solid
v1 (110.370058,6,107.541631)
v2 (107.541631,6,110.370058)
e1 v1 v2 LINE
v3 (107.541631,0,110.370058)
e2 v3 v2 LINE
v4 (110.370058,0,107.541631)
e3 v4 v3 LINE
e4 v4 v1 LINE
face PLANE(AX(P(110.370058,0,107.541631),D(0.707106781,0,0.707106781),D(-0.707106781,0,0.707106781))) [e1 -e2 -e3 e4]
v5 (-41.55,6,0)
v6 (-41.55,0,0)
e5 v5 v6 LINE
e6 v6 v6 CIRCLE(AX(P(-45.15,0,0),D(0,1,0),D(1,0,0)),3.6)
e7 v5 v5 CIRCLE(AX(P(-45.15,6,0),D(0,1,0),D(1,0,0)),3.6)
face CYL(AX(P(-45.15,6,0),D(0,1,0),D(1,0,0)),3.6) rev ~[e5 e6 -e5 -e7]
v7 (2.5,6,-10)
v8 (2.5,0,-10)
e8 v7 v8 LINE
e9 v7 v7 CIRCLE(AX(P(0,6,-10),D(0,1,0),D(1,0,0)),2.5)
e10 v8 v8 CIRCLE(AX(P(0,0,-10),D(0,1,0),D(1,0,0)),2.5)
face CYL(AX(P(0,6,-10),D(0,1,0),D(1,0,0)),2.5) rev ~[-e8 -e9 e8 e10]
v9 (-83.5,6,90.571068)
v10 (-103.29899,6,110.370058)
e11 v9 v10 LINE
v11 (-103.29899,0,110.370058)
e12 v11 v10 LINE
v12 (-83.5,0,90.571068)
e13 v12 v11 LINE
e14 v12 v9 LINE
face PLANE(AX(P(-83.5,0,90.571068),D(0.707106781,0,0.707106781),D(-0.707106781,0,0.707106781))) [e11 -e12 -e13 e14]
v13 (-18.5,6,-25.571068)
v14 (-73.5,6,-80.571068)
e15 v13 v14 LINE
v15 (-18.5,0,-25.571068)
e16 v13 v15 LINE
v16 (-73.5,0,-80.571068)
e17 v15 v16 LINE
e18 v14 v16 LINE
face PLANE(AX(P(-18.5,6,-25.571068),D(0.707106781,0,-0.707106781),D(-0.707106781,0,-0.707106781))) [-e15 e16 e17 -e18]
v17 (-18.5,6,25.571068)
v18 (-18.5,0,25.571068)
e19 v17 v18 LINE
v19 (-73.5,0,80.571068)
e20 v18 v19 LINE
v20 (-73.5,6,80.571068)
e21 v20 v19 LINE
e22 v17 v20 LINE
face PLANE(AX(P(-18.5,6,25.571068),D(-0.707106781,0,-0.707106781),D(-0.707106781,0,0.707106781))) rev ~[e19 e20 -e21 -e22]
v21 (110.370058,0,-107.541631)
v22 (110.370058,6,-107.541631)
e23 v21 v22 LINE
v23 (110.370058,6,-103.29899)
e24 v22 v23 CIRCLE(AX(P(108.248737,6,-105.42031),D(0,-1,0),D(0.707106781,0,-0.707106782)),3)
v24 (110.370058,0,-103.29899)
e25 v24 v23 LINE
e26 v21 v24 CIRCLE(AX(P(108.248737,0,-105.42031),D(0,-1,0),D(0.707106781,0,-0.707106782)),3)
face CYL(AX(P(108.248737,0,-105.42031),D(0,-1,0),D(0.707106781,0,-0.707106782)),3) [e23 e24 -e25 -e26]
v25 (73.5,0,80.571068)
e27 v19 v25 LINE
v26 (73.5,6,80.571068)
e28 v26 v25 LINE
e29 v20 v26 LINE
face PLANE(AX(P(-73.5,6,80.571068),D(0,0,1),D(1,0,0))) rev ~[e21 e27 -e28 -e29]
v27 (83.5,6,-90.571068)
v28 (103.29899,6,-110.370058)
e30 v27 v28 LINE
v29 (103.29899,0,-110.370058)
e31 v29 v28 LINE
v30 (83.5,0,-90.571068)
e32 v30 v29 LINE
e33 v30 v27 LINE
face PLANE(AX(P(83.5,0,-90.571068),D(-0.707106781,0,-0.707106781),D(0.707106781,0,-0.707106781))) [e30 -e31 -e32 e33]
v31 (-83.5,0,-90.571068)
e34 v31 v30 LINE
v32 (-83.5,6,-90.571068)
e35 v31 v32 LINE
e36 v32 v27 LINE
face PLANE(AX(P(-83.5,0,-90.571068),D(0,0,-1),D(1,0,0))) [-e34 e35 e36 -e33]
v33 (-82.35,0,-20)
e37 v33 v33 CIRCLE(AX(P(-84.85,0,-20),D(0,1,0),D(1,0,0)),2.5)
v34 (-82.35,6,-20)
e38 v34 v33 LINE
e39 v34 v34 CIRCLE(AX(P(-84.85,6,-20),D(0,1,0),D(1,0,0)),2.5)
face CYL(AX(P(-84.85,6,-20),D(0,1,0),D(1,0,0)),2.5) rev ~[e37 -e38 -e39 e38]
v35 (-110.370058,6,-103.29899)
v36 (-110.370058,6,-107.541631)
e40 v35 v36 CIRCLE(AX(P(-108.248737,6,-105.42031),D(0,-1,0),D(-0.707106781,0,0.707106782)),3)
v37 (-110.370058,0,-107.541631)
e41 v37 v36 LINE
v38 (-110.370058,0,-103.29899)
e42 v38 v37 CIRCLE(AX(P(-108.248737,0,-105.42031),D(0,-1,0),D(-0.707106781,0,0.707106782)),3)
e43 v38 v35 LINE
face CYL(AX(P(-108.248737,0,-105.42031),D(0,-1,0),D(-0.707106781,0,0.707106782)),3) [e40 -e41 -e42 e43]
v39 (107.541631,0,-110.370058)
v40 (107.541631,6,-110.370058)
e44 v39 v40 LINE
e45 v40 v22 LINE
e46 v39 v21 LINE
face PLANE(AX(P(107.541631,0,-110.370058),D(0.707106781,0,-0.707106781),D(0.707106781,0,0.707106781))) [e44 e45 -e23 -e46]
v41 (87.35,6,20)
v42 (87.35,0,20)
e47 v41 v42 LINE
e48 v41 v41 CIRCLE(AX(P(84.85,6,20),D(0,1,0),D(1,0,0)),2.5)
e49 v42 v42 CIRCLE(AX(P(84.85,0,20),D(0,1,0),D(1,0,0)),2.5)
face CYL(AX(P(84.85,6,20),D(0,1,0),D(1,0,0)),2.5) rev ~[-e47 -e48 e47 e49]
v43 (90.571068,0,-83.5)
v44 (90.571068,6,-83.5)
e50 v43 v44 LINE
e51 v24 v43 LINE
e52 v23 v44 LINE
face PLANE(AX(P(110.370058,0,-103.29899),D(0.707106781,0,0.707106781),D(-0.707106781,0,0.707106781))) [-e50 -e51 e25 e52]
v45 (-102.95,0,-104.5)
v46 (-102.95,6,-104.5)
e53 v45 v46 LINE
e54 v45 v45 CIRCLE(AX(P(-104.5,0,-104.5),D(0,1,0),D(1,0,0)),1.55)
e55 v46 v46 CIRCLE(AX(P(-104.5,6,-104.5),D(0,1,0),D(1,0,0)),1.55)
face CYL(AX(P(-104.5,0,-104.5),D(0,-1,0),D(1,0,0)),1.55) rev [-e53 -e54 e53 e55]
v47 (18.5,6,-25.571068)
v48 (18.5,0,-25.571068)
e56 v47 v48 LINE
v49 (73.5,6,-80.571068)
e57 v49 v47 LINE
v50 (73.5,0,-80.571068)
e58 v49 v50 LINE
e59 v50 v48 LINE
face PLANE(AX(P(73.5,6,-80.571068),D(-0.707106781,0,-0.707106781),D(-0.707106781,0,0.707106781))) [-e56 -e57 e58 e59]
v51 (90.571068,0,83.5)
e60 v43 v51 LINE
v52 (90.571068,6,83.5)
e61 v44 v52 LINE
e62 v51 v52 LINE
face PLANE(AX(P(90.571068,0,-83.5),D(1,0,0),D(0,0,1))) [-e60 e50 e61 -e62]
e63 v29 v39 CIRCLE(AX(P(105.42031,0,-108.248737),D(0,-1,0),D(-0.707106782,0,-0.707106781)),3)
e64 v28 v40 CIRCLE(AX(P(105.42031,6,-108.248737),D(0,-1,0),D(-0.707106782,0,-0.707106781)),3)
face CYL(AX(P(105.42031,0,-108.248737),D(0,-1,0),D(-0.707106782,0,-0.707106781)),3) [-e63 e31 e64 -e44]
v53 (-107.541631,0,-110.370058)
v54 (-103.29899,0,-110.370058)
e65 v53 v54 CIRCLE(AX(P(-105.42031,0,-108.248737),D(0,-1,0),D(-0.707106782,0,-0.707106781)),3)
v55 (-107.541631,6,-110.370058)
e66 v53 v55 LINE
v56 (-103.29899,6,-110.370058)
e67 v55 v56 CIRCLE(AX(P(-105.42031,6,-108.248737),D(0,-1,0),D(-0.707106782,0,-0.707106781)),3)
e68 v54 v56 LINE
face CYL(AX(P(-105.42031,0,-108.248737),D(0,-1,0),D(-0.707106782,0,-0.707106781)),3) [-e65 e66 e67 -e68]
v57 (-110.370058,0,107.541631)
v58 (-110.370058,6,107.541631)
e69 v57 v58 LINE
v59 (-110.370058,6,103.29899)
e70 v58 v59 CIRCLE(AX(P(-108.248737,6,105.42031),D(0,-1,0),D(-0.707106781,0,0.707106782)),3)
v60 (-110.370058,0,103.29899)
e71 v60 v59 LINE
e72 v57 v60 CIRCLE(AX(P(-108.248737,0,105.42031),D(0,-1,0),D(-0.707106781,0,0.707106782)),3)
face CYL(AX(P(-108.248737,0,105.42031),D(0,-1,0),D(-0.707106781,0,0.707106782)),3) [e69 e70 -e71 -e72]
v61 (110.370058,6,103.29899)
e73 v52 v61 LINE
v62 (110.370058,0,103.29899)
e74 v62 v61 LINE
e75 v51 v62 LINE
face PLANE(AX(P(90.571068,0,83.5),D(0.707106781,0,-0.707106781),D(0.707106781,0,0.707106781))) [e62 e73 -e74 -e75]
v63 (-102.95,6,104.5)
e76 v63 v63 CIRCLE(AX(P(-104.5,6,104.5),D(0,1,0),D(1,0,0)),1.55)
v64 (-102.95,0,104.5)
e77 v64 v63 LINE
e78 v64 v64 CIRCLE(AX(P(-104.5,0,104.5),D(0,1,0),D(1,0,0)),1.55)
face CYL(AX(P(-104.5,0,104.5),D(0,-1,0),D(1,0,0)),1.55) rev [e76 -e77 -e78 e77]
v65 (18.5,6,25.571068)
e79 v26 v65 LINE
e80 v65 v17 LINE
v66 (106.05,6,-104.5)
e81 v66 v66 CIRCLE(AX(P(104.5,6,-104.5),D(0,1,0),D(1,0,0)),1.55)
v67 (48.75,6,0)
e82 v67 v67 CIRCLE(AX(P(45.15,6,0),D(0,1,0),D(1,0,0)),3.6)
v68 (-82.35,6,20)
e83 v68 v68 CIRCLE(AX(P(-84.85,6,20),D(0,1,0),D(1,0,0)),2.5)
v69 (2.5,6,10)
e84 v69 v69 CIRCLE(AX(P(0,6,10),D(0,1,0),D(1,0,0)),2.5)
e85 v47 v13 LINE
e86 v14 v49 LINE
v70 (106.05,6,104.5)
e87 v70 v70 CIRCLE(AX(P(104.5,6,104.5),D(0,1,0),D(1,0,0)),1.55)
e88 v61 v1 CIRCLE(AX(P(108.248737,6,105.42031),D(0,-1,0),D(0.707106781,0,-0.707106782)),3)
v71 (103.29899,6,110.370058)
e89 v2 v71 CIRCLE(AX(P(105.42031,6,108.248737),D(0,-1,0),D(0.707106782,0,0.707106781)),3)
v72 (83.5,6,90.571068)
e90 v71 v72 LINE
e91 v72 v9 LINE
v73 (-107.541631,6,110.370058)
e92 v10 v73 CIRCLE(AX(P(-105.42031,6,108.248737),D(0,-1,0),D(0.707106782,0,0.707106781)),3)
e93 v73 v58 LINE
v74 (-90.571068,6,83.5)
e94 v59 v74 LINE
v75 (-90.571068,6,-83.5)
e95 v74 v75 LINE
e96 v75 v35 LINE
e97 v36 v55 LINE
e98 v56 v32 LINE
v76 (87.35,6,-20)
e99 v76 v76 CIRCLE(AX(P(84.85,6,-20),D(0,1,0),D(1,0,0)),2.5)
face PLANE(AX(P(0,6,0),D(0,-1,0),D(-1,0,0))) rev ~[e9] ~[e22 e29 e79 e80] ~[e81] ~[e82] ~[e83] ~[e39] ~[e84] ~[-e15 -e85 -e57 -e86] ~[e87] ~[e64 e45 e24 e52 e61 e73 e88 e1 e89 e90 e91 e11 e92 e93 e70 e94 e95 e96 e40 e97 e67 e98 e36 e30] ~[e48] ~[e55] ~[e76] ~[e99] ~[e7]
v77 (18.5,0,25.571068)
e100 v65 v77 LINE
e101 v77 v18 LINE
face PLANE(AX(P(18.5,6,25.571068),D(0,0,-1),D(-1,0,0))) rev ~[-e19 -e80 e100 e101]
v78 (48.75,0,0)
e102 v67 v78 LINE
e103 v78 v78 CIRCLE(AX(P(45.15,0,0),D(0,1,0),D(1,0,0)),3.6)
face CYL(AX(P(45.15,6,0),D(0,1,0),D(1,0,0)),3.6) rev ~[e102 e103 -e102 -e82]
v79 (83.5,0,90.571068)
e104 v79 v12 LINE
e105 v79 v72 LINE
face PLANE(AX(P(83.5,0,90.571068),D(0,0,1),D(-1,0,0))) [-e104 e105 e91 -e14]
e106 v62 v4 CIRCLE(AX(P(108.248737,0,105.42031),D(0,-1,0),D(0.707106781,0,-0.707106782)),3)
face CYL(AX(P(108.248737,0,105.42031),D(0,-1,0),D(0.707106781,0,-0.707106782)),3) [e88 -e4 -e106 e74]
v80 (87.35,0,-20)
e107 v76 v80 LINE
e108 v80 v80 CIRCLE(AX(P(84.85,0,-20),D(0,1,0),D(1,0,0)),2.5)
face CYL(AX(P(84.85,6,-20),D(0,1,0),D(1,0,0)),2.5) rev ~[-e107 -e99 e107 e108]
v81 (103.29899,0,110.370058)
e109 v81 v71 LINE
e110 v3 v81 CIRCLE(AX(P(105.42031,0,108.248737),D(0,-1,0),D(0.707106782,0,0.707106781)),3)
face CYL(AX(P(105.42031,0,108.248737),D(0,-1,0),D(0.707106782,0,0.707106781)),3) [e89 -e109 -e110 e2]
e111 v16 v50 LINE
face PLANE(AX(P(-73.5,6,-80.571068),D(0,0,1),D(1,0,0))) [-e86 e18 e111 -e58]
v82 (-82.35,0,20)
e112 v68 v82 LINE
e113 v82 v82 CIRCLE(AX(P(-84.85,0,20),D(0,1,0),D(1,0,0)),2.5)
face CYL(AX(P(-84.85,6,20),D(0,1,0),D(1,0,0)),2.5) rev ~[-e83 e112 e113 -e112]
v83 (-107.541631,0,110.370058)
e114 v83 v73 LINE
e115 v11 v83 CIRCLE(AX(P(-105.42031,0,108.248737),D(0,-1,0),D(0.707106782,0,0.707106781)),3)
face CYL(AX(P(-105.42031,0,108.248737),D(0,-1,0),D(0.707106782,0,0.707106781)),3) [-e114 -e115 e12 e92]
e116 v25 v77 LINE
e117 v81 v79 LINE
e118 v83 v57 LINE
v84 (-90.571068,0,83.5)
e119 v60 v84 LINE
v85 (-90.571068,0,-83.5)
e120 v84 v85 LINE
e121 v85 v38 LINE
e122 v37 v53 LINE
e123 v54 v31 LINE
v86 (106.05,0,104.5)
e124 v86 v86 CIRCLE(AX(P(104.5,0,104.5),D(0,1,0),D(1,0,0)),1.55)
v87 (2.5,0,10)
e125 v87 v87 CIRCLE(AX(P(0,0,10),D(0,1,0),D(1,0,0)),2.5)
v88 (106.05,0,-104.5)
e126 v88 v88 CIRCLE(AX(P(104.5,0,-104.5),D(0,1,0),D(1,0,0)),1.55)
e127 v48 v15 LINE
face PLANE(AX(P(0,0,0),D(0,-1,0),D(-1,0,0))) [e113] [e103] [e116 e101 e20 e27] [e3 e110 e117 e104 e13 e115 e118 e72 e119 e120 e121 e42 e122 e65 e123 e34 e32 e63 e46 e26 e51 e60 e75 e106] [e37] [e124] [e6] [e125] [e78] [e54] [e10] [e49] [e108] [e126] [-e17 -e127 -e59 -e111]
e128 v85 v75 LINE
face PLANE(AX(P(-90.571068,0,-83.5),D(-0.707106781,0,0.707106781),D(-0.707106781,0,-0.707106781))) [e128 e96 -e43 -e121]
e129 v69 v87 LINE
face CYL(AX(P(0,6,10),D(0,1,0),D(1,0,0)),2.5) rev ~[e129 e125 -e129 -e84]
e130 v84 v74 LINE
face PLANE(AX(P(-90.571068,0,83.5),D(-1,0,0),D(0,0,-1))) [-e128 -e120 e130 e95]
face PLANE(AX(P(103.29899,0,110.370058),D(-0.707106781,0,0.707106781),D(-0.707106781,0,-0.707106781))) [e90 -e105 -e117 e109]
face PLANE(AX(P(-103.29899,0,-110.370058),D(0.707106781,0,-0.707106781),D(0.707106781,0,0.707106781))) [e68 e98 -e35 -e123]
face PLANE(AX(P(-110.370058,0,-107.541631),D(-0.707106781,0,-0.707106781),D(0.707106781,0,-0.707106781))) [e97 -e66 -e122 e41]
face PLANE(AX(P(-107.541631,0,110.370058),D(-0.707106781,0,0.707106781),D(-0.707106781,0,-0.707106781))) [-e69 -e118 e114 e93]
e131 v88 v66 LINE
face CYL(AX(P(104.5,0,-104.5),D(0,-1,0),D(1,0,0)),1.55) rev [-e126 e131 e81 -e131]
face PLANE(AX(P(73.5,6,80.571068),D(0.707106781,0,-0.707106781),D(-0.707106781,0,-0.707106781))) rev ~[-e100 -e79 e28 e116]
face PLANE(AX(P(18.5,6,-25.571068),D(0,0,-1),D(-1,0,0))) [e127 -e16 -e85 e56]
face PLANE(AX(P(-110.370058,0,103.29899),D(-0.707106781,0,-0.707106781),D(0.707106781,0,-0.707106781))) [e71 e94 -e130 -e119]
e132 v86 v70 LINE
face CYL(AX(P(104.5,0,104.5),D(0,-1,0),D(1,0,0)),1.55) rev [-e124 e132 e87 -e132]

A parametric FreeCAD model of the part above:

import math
import FreeCAD as App
import Part
import Sketcher


def add_polygon(sketch, points):
    """Adds a closed chain of lines whose ends are joined by coincident constraints."""
    first, n = sketch.GeometryCount, len(points)
    for a, b in zip(points, points[1:] + points[:1]):
        sketch.addGeometry(Part.LineSegment(App.Vector(*a, 0), App.Vector(*b, 0)), False)
    for i in range(n):
        sketch.addConstraint(Sketcher.Constraint("Coincident", first + i, 2, first + (i + 1) % n, 1))

doc = App.newDocument("Part")
body = doc.addObject("PartDesign::Body", "Body")

sketch1 = body.newObject("Sketcher::SketchObject", "Sketch")
sketch1.AttachmentSupport = (doc.getObject("XZ_Plane"), [""])
sketch1.MapMode = "FlatFace"
sketch1.addGeometry([
    Part.LineSegment(App.Vector(83.5, -90.6, 0), App.Vector(-83.5, -90.6, 0)),
    Part.LineSegment(App.Vector(-83.5, -90.6, 0), App.Vector(-103.3, -110.4, 0)),
    Part.ArcOfCircle(Part.Circle(App.Vector(-105.4, -108.2, 0), App.Vector(0, 0, 1), 3), math.radians(-135), math.radians(-45)),
    Part.LineSegment(App.Vector(-107.5, -110.4, 0), App.Vector(-110.4, -107.5, 0)),
    Part.ArcOfCircle(Part.Circle(App.Vector(-108.2, -105.4, 0), App.Vector(0, 0, 1), 3), math.radians(135), math.radians(225)),
    Part.LineSegment(App.Vector(-110.4, -103.3, 0), App.Vector(-90.6, -83.5, 0)),
    Part.LineSegment(App.Vector(-90.6, -83.5, 0), App.Vector(-90.6, 83.5, 0)),
    Part.LineSegment(App.Vector(-90.6, 83.5, 0), App.Vector(-110.4, 103.3, 0)),
    Part.ArcOfCircle(Part.Circle(App.Vector(-108.2, 105.4, 0), App.Vector(0, 0, 1), 3), math.radians(135), math.radians(225)),
    Part.LineSegment(App.Vector(-110.4, 107.5, 0), App.Vector(-107.5, 110.4, 0)),
    Part.ArcOfCircle(Part.Circle(App.Vector(-105.4, 108.2, 0), App.Vector(0, 0, 1), 3), math.radians(45), math.radians(135)),
    Part.LineSegment(App.Vector(-103.3, 110.4, 0), App.Vector(-83.5, 90.6, 0)),
    Part.LineSegment(App.Vector(-83.5, 90.6, 0), App.Vector(83.5, 90.6, 0)),
    Part.LineSegment(App.Vector(83.5, 90.6, 0), App.Vector(103.3, 110.4, 0)),
    Part.ArcOfCircle(Part.Circle(App.Vector(105.4, 108.2, 0), App.Vector(0, 0, 1), 3), math.radians(45), math.radians(135)),
    Part.LineSegment(App.Vector(107.5, 110.4, 0), App.Vector(110.4, 107.5, 0)),
    Part.ArcOfCircle(Part.Circle(App.Vector(108.2, 105.4, 0), App.Vector(0, 0, 1), 3), math.radians(-45), math.radians(45)),
    Part.LineSegment(App.Vector(110.4, 103.3, 0), App.Vector(90.6, 83.5, 0)),
    Part.LineSegment(App.Vector(90.6, 83.5, 0), App.Vector(90.6, -83.5, 0)),
    Part.LineSegment(App.Vector(90.6, -83.5, 0), App.Vector(110.4, -103.3, 0)),
    Part.ArcOfCircle(Part.Circle(App.Vector(108.2, -105.4, 0), App.Vector(0, 0, 1), 3), math.radians(-45), math.radians(45)),
    Part.LineSegment(App.Vector(110.4, -107.5, 0), App.Vector(107.5, -110.4, 0)),
    Part.ArcOfCircle(Part.Circle(App.Vector(105.4, -108.2, 0), App.Vector(0, 0, 1), 3), math.radians(-135), math.radians(-45)),
    Part.LineSegment(App.Vector(103.3, -110.4, 0), App.Vector(83.5, -90.6, 0)),
], False)
sketch1.addConstraint([
    Sketcher.Constraint("Coincident", 0, 2, 1, 1),
    Sketcher.Constraint("Tangent", 1, 2, 2, 2),
    Sketcher.Constraint("Tangent", 2, 1, 3, 1),
    Sketcher.Constraint("Tangent", 3, 2, 4, 2),
    Sketcher.Constraint("Tangent", 4, 1, 5, 1),
    Sketcher.Constraint("Coincident", 5, 2, 6, 1),
    Sketcher.Constraint("Coincident", 6, 2, 7, 1),
    Sketcher.Constraint("Tangent", 7, 2, 8, 2),
    Sketcher.Constraint("Tangent", 8, 1, 9, 1),
    Sketcher.Constraint("Tangent", 9, 2, 10, 2),
    Sketcher.Constraint("Tangent", 10, 1, 11, 1),
    Sketcher.Constraint("Coincident", 11, 2, 12, 1),
    Sketcher.Constraint("Coincident", 12, 2, 13, 1),
    Sketcher.Constraint("Tangent", 13, 2, 14, 2),
    Sketcher.Constraint("Tangent", 14, 1, 15, 1),
    Sketcher.Constraint("Tangent", 15, 2, 16, 2),
    Sketcher.Constraint("Tangent", 16, 1, 17, 1),
    Sketcher.Constraint("Coincident", 17, 2, 18, 1),
    Sketcher.Constraint("Coincident", 18, 2, 19, 1),
    Sketcher.Constraint("Tangent", 19, 2, 20, 2),
    Sketcher.Constraint("Tangent", 20, 1, 21, 1),
    Sketcher.Constraint("Tangent", 21, 2, 22, 2),
    Sketcher.Constraint("Tangent", 22, 1, 23, 1),
    Sketcher.Constraint("Coincident", 23, 2, 0, 1),
    Sketcher.Constraint("Horizontal", 0),
    Sketcher.Constraint("Vertical", 6),
    Sketcher.Constraint("Horizontal", 12),
    Sketcher.Constraint("Vertical", 18),
    Sketcher.Constraint("Equal", 2, 4),
    Sketcher.Constraint("Equal", 4, 8),
    Sketcher.Constraint("Equal", 8, 10),
    Sketcher.Constraint("Equal", 10, 14),
    Sketcher.Constraint("Equal", 14, 16),
    Sketcher.Constraint("Equal", 16, 20),
    Sketcher.Constraint("Equal", 20, 22),
    Sketcher.Constraint("Symmetric", 2, 3, 14, 3, -1, 1),
    Sketcher.Constraint("Symmetric", 4, 3, 16, 3, -1, 1),
    Sketcher.Constraint("Symmetric", 8, 3, 20, 3, -1, 1),
    Sketcher.Constraint("Symmetric", 10, 3, 22, 3, -1, 1),
    Sketcher.Constraint("Symmetric", 0, 2, 12, 2, -1, 1),
    Sketcher.Constraint("Symmetric", 5, 2, 17, 2, -1, 1),
    Sketcher.Constraint("Symmetric", 10, 3, 14, 3, -2),
    Sketcher.Constraint("Symmetric", 8, 3, 16, 3, -2),
    Sketcher.Constraint("Perpendicular", 1, 3),
    Sketcher.Constraint("Perpendicular", 3, 5),
    Sketcher.Constraint("Perpendicular", 5, 7),
    Sketcher.Constraint("Perpendicular", 7, 9),
    Sketcher.Constraint("Perpendicular", 9, 11),
    Sketcher.Constraint("Perpendicular", 17, 19),
    Sketcher.Constraint("Perpendicular", 21, 23),
    Sketcher.Constraint("Equal", 12, 6),
    Sketcher.Constraint("Equal", 1, 5),
    Sketcher.Constraint("Radius", 2, 3.0),
    Sketcher.Constraint("DistanceX", 0, 2, 0, 1, 167.0),
    Sketcher.Constraint("Distance", 1, 28.0),
    Sketcher.Constraint("Distance", 3, 4.0),
])
pad1 = body.newObject("PartDesign::Pad", "Pad")
pad1.Profile = sketch1
pad1.Length = 6
pad1.Reversed = True

sketch2 = body.newObject("Sketcher::SketchObject", "Sketch001")
sketch2.AttachmentSupport = (doc.getObject("XZ_Plane"), [""])
sketch2.MapMode = "FlatFace"
sketch2.addGeometry([
    Part.Circle(App.Vector(-104.5, -104.5, 0), App.Vector(0, 0, 1), 1.6),
    Part.Circle(App.Vector(104.5, -104.5, 0), App.Vector(0, 0, 1), 1.6),
    Part.Circle(App.Vector(104.5, 104.5, 0), App.Vector(0, 0, 1), 1.6),
    Part.Circle(App.Vector(-104.5, 104.5, 0), App.Vector(0, 0, 1), 1.6),
], False)
sketch2.addConstraint([
    Sketcher.Constraint("Equal", 0, 1),
    Sketcher.Constraint("Equal", 1, 2),
    Sketcher.Constraint("Equal", 2, 3),
    Sketcher.Constraint("Symmetric", 0, 3, 2, 3, -1, 1),
    Sketcher.Constraint("Symmetric", 1, 3, 3, 3, -1, 1),
    Sketcher.Constraint("Symmetric", 0, 3, 1, 3, -2),
    Sketcher.Constraint("Diameter", 0, 3.1),
    Sketcher.Constraint("DistanceX", 0, 3, 1, 3, 209.0),
    Sketcher.Constraint("DistanceY", 1, 3, 2, 3, 209.0),
])
pocket1 = body.newObject("PartDesign::Pocket", "Pocket")
pocket1.Profile = sketch2
pocket1.Length = 6

sketch3 = body.newObject("Sketcher::SketchObject", "Sketch002")
sketch3.AttachmentSupport = (doc.getObject("XZ_Plane"), [""])
sketch3.MapMode = "FlatFace"
sketch3.AttachmentOffset = App.Placement(App.Vector(0, 0, -6), App.Rotation())
sketch3.addGeometry([
    Part.Circle(App.Vector(-84.8, -20, 0), App.Vector(0, 0, 1), 2.5),
    Part.Circle(App.Vector(-84.8, 20, 0), App.Vector(0, 0, 1), 2.5),
    Part.Circle(App.Vector(45.1, 0, 0), App.Vector(0, 0, 1), 3.6),
    Part.Circle(App.Vector(84.8, 20, 0), App.Vector(0, 0, 1), 2.5),
    Part.Circle(App.Vector(-45.1, 0, 0), App.Vector(0, 0, 1), 3.6),
    Part.Circle(App.Vector(84.8, -20, 0), App.Vector(0, 0, 1), 2.5),
], False)
sketch3.addConstraint([
    Sketcher.Constraint("Equal", 0, 1),
    Sketcher.Constraint("Equal", 1, 3),
    Sketcher.Constraint("Equal", 2, 4),
    Sketcher.Constraint("Equal", 3, 5),
    Sketcher.Constraint("Symmetric", 0, 3, 3, 3, -1, 1),
    Sketcher.Constraint("Symmetric", 2, 3, 4, 3, -1, 1),
    Sketcher.Constraint("Symmetric", 1, 3, 5, 3, -1, 1),
    Sketcher.Constraint("Symmetric", 1, 3, 3, 3, -2),
    Sketcher.Constraint("PointOnObject", 2, 3, -1),
    Sketcher.Constraint("Diameter", 0, 5.0),
    Sketcher.Constraint("Diameter", 2, 7.2),
    Sketcher.Constraint("DistanceY", 0, 3, -1, 1, 20.0),
    Sketcher.Constraint("DistanceX", 0, 3, 2, 3, 130.0),
    Sketcher.Constraint("DistanceX", 2, 3, 3, 3, 39.7),
])
pocket2 = body.newObject("PartDesign::Pocket", "Pocket001")
pocket2.Profile = sketch3
pocket2.Length = 6
pocket2.Reversed = True

sketch4 = body.newObject("Sketcher::SketchObject", "Sketch003")
sketch4.AttachmentSupport = (doc.getObject("XZ_Plane"), [""])
sketch4.MapMode = "FlatFace"
sketch4.AttachmentOffset = App.Placement(App.Vector(0, 0, -6), App.Rotation())
sketch4.addGeometry([
    Part.Circle(App.Vector(0, -10, 0), App.Vector(0, 0, 1), 2.5),
    Part.Circle(App.Vector(0, 10, 0), App.Vector(0, 0, 1), 2.5),
], False)
sketch4.addConstraint([
    Sketcher.Constraint("Equal", 0, 1),
    Sketcher.Constraint("Symmetric", 0, 3, 1, 3, -1, 1),
    Sketcher.Constraint("PointOnObject", 0, 3, -2),
    Sketcher.Constraint("Diameter", 0, 5.0),
    Sketcher.Constraint("DistanceY", 0, 3, -1, 1, 10.0),
])
pocket3 = body.newObject("PartDesign::Pocket", "Pocket002")
pocket3.Profile = sketch4
pocket3.Length = 6
pocket3.Reversed = True

sketch5 = body.newObject("Sketcher::SketchObject", "Sketch004")
sketch5.AttachmentSupport = (doc.getObject("XZ_Plane"), [""])
sketch5.MapMode = "FlatFace"
sketch5.AttachmentOffset = App.Placement(App.Vector(0, 0, -6), App.Rotation())
add_polygon(sketch5, [(74, -81), (-74, -81), (-18, -26), (18, -26)])
add_polygon(sketch5, [(74, 81), (18, 26), (-18, 26), (-74, 81)])
sketch5.addConstraint([
    Sketcher.Constraint("Horizontal", 0),
    Sketcher.Constraint("Horizontal", 2),
    Sketcher.Constraint("Horizontal", 5),
    Sketcher.Constraint("Horizontal", 7),
    Sketcher.Constraint("Symmetric", 1, 2, 4, 2, -1, 1),
    Sketcher.Constraint("Symmetric", 3, 2, 6, 2, -1, 1),
    Sketcher.Constraint("Perpendicular", 1, 3),
    Sketcher.Constraint("Perpendicular", 3, 4),
    Sketcher.Constraint("Perpendicular", 4, 6),
    Sketcher.Constraint("Vertical", 2, 2, 4, 2),
    Sketcher.Constraint("Vertical", 0, 2, 6, 2),
    Sketcher.Constraint("DistanceX", 0, 2, 0, 1, 147.0),
    Sketcher.Constraint("DistanceX", 2, 1, 2, 2, 37.0),
    Sketcher.Constraint("DistanceY", 0, 2, -1, 1, 80.571068),
])
pocket4 = body.newObject("PartDesign::Pocket", "Pocket003")
pocket4.Profile = sketch5
pocket4.Length = 6
pocket4.Reversed = True

doc.recompute()
